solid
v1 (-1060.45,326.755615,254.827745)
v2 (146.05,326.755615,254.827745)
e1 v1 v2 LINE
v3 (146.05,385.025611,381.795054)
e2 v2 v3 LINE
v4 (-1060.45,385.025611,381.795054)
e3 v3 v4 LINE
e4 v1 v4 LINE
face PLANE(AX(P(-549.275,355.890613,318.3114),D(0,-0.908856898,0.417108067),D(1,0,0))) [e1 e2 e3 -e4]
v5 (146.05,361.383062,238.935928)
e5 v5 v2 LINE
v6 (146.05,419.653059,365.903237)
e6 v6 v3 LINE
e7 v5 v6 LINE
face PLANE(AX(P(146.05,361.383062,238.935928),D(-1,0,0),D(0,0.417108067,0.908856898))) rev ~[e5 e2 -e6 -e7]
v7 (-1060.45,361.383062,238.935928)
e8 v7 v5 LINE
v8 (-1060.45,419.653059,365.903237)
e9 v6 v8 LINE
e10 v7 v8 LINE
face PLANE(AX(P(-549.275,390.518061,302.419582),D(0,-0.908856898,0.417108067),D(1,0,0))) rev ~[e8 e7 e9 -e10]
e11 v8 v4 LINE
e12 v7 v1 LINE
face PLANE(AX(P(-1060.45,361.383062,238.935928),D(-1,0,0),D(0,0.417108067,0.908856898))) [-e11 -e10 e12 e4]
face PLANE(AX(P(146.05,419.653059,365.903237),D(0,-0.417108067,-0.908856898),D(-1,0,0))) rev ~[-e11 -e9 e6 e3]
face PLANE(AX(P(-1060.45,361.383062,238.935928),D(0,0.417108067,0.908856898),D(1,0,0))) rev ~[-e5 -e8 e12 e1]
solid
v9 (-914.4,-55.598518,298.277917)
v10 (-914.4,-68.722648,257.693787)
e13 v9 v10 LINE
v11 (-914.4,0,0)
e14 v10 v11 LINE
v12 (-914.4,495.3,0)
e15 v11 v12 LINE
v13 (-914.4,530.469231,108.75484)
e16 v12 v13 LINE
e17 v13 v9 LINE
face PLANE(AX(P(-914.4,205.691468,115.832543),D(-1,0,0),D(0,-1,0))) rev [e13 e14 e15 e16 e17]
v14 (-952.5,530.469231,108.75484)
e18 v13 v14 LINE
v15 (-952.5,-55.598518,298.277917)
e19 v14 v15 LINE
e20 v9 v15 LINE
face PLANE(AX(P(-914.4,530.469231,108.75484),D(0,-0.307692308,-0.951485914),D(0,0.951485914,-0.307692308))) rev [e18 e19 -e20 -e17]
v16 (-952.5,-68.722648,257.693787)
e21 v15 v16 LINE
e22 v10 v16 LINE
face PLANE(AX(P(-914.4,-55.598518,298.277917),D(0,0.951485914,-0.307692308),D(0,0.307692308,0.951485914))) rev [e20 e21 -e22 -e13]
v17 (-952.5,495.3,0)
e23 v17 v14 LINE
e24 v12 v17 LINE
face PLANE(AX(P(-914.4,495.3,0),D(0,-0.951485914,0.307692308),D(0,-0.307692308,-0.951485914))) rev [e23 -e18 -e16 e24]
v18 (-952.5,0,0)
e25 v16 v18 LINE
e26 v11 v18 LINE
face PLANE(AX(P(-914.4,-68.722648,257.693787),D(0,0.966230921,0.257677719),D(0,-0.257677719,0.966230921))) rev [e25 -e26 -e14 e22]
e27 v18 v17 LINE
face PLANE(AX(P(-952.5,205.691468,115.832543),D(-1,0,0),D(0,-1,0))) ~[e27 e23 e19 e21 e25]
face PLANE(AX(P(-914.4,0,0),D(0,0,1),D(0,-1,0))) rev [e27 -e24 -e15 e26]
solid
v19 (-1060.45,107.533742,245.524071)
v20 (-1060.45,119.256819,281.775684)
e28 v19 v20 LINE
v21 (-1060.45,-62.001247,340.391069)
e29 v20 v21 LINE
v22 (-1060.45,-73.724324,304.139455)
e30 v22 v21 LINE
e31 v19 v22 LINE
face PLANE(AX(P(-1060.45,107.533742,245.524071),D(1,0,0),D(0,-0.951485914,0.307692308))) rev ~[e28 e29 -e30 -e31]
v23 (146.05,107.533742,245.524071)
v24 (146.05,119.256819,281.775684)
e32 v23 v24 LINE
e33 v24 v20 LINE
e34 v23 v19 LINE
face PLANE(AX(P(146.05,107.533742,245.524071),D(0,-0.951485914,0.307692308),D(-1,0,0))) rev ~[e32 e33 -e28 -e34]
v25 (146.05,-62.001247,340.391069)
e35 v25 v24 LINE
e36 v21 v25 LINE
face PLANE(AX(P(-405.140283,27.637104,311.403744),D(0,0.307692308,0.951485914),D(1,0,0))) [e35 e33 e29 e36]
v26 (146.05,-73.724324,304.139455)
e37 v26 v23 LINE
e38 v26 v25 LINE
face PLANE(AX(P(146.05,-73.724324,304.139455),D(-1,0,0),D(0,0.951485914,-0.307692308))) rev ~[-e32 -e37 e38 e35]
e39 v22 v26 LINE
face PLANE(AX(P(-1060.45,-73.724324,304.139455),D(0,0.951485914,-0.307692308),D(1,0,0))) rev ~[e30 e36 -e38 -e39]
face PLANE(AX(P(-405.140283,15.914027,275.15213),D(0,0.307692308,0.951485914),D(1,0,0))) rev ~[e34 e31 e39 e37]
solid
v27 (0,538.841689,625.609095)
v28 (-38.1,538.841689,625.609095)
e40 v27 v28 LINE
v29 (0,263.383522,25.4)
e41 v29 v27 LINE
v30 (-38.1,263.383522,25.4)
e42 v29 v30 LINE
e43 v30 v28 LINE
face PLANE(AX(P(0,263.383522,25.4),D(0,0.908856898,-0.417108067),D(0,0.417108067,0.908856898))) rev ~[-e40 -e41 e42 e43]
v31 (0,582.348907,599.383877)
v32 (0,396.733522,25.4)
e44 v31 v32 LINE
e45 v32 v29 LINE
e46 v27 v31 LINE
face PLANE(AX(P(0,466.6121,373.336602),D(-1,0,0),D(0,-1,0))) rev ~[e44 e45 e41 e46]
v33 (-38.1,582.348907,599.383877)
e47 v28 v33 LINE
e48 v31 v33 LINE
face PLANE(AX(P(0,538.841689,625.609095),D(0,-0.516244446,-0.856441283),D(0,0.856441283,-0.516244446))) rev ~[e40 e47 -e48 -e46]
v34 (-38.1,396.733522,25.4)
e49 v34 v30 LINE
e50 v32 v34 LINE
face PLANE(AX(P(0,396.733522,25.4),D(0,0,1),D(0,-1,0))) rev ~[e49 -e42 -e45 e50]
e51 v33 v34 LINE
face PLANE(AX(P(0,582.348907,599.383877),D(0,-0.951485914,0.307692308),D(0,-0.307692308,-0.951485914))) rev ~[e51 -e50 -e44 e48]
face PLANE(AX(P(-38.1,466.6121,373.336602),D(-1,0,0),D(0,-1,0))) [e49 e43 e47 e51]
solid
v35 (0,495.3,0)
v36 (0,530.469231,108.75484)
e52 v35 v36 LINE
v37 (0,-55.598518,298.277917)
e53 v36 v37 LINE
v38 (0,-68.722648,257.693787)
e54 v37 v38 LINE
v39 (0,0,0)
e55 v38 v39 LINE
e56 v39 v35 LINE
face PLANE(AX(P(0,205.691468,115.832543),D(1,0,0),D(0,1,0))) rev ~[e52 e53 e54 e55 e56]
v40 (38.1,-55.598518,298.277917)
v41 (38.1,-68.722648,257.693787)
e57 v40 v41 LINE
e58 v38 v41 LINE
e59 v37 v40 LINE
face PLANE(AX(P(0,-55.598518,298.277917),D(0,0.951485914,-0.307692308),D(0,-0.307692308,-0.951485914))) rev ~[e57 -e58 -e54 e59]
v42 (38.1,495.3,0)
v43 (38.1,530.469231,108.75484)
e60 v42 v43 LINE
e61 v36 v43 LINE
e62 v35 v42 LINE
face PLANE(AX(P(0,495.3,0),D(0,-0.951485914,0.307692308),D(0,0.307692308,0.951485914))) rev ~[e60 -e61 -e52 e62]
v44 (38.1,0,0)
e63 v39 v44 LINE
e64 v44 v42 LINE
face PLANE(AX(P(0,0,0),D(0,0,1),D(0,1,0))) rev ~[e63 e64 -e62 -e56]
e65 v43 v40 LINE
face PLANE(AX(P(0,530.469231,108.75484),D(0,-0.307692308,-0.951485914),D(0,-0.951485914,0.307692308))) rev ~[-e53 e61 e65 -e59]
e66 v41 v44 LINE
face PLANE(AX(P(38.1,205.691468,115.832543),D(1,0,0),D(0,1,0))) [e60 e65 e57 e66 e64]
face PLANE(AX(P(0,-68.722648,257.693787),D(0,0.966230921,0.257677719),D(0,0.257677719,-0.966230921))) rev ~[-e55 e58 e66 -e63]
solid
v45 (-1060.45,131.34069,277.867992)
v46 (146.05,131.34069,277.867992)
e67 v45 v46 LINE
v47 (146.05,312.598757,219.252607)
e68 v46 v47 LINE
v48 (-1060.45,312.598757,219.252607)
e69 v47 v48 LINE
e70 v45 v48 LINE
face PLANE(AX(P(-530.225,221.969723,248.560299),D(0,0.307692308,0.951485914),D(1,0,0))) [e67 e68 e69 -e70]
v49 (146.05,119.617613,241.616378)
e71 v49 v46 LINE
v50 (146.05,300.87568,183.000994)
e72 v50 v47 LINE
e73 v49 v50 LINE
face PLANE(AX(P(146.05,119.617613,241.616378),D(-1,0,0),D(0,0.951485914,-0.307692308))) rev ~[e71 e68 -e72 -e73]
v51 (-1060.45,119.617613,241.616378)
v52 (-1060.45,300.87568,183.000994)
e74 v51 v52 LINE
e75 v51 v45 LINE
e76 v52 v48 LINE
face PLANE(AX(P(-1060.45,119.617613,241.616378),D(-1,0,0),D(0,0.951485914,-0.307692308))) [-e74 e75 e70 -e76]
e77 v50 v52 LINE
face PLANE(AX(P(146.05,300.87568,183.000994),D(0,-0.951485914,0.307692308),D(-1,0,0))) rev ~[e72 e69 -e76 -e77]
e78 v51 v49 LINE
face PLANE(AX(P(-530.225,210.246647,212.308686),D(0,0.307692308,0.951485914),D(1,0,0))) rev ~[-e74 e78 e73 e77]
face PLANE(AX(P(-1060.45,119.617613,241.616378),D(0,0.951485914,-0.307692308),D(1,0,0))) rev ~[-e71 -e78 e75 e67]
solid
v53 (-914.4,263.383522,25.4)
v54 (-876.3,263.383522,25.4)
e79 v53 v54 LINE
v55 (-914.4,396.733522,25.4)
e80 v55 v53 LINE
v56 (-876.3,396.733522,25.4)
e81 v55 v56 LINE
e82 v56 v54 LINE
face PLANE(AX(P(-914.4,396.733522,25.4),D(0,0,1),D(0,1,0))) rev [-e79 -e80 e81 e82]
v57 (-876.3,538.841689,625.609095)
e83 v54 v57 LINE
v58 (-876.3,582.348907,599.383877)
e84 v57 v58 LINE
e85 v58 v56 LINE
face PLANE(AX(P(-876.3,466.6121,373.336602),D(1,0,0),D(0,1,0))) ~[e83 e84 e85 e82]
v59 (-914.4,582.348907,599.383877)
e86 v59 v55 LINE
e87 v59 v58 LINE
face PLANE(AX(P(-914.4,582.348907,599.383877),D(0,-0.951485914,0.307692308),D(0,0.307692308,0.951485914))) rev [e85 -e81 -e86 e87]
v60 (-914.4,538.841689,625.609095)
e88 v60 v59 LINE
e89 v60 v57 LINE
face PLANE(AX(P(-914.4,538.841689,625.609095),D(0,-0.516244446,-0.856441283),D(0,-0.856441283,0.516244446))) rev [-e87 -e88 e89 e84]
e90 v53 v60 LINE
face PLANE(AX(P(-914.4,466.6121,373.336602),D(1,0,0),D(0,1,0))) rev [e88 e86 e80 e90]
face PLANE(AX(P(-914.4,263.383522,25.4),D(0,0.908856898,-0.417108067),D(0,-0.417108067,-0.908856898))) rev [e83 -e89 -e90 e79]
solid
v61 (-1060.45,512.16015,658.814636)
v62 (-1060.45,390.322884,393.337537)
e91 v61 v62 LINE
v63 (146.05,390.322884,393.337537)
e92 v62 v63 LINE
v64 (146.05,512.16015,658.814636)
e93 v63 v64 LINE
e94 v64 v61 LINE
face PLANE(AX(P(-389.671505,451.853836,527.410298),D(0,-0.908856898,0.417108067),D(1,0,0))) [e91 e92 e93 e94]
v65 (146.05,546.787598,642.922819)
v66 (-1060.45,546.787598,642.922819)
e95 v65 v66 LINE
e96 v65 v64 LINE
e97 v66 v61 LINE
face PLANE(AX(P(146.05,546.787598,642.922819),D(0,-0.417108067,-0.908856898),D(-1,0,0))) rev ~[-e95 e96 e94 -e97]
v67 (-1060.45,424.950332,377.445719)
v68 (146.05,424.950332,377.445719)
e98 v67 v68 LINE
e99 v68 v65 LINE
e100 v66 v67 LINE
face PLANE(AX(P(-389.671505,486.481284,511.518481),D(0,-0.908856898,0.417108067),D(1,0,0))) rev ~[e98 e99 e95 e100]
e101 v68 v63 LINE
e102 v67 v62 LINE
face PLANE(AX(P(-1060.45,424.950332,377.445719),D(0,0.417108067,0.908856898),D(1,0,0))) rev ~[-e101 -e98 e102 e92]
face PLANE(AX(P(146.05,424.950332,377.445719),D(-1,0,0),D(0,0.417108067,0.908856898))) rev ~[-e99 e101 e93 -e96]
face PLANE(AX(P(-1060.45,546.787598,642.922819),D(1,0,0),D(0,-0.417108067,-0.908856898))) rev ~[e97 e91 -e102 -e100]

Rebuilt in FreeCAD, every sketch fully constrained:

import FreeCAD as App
import Part
import Sketcher
Q = App.Units.Quantity

doc = App.newDocument("Part")
body = doc.addObject("PartDesign::Body", "Body")

sketch1 = body.newObject("Sketcher::SketchObject", "Sketch")
sketch1.AttachmentSupport = (doc.getObject("YZ_Plane"), [""])
sketch1.MapMode = "FlatFace"
sketch1.addGeometry(Part.LineSegment(App.Vector(-68.722648, 257.693787, 0), App.Vector(0, 0, 0)), False)
sketch1.addGeometry(Part.LineSegment(App.Vector(0, 0, 0), App.Vector(495.3, 0, 0)), False)
sketch1.addGeometry(Part.LineSegment(App.Vector(495.3, 0, 0), App.Vector(530.469231, 108.75484, 0)), False)
sketch1.addGeometry(Part.LineSegment(App.Vector(530.469231, 108.75484, 0), App.Vector(-55.598518, 298.277917, 0)), False)
sketch1.addGeometry(Part.LineSegment(App.Vector(-55.598518, 298.277917, 0), App.Vector(-68.722648, 257.693787, 0)), False)
sketch1.addConstraint(Sketcher.Constraint("Coincident", 0, 2, 1, 1))
sketch1.addConstraint(Sketcher.Constraint("Coincident", 1, 2, 2, 1))
sketch1.addConstraint(Sketcher.Constraint("Coincident", 2, 2, 3, 1))
sketch1.addConstraint(Sketcher.Constraint("Coincident", 3, 2, 4, 1))
sketch1.addConstraint(Sketcher.Constraint("Coincident", 4, 2, 0, 1))
sketch1.addConstraint(Sketcher.Constraint("Horizontal", 1))
sketch1.addConstraint(Sketcher.Constraint("Coincident", 0, 2, -1, 1))
sketch1.addConstraint(Sketcher.Constraint("Perpendicular", 2, 3))
sketch1.addConstraint(Sketcher.Constraint("Perpendicular", 3, 4))
sketch1.addConstraint(Sketcher.Constraint("DistanceX", 1, 1, 1, 2, Q("19.5 in")))
sketch1.addConstraint(Sketcher.Constraint("Distance", 0, Q("10.5 in")))
sketch1.addConstraint(Sketcher.Constraint("Distance", 2, Q("4.5 in")))
sketch1.addConstraint(Sketcher.Constraint("Distance", 3, Q("24.25 in")))
sketch1.addConstraint(Sketcher.Constraint("Distance", 4, Q("42.653422 mm")))
pad1 = body.newObject("PartDesign::Pad", "Pad")
pad1.Profile = sketch1
pad1.Length = Q("1.5 in")
body2 = doc.addObject("PartDesign::Body", "Body001")

sketch2 = body2.newObject("Sketcher::SketchObject", "Sketch001")
sketch2.AttachmentSupport = (doc.getObject("YZ_Plane001"), [""])
sketch2.MapMode = "FlatFace"
sketch2.addGeometry(Part.LineSegment(App.Vector(538.841689, 625.609095, 0), App.Vector(582.348907, 599.383877, 0)), False)
sketch2.addGeometry(Part.LineSegment(App.Vector(582.348907, 599.383877, 0), App.Vector(396.733522, 25.4, 0)), False)
sketch2.addGeometry(Part.LineSegment(App.Vector(396.733522, 25.4, 0), App.Vector(263.383522, 25.4, 0)), False)
sketch2.addGeometry(Part.LineSegment(App.Vector(263.383522, 25.4, 0), App.Vector(538.841689, 625.609095, 0)), False)
sketch2.addConstraint(Sketcher.Constraint("Coincident", 0, 2, 1, 1))
sketch2.addConstraint(Sketcher.Constraint("Coincident", 1, 2, 2, 1))
sketch2.addConstraint(Sketcher.Constraint("Coincident", 2, 2, 3, 1))
sketch2.addConstraint(Sketcher.Constraint("Coincident", 3, 2, 0, 1))
sketch2.addConstraint(Sketcher.Constraint("Horizontal", 2))
sketch2.addConstraint(Sketcher.Constraint("Distance", 0, Q("2 in")))
sketch2.addConstraint(Sketcher.Constraint("Distance", 3, Q("26 in")))
sketch2.addConstraint(Sketcher.Constraint("DistanceY", -1, 1, 1, 2, Q("1 in")))
sketch2.addConstraint(Sketcher.Constraint("DistanceX", 2, 2, 2, 1, Q("5.25 in")))
sketch2.addConstraint(Sketcher.Constraint("Distance", 1, Q("23.75 in")))
sketch2.addConstraint(Sketcher.Constraint("DistanceX", -1, 1, 1, 2, Q("396.733522 mm")))
sketch2.addConstraint(Sketcher.Constraint("DistanceX", -1, 1, 3, 2, Q("538.841689 mm")))
pad2 = body2.newObject("PartDesign::Pad", "Pad001")
pad2.Profile = sketch2
pad2.Length = Q("1.5 in")
pad2.Reversed = True
body3 = doc.addObject("PartDesign::Body", "Body002")
doc.recompute()

mirroring = doc.addObject("Part::Mirroring", "Mirroring")
mirroring.Source = body
mirroring.Base = App.Vector(-457.2, 0, 0)
mirroring.Normal = App.Vector(1, 0, 0)
body3.BaseFeature = mirroring
doc.recompute()
body4 = doc.addObject("PartDesign::Body", "Body003")
doc.recompute()

mirroring2 = doc.addObject("Part::Mirroring", "Mirroring001")
mirroring2.Source = body2
mirroring2.Base = App.Vector(-457.2, 0, 0)
mirroring2.Normal = App.Vector(1, 0, 0)
body4.BaseFeature = mirroring2
doc.recompute()
body5 = doc.addObject("PartDesign::Body", "Body004")

sketch3 = body5.newObject("Sketcher::SketchObject", "Sketch002")
sketch3.Placement = App.Placement(App.Vector(0, 207.931358, -95.427396), App.Rotation(App.Vector(1, 0, 0), App.Vector(0, 0.417108067, 0.908856898), App.Vector(0, -0.908856898, 0.417108067), "ZXY"))
sketch3.addGeometry(Part.LineSegment(App.Vector(146.05, 812.394357, 0), App.Vector(-1060.45, 812.394357, 0)), False)
sketch3.addGeometry(Part.LineSegment(App.Vector(-1060.45, 812.394357, 0), App.Vector(-1060.45, 520.294357, 0)), False)
sketch3.addGeometry(Part.LineSegment(App.Vector(-1060.45, 520.294357, 0), App.Vector(146.05, 520.294357, 0)), False)
sketch3.addGeometry(Part.LineSegment(App.Vector(146.05, 520.294357, 0), App.Vector(146.05, 812.394357, 0)), False)
sketch3.addConstraint(Sketcher.Constraint("Coincident", 0, 2, 1, 1))
sketch3.addConstraint(Sketcher.Constraint("Coincident", 1, 2, 2, 1))
sketch3.addConstraint(Sketcher.Constraint("Coincident", 2, 2, 3, 1))
sketch3.addConstraint(Sketcher.Constraint("Coincident", 3, 2, 0, 1))
sketch3.addConstraint(Sketcher.Constraint("Horizontal", 0))
sketch3.addConstraint(Sketcher.Constraint("Vertical", 1))
sketch3.addConstraint(Sketcher.Constraint("Horizontal", 2))
sketch3.addConstraint(Sketcher.Constraint("Vertical", 3))
sketch3.addConstraint(Sketcher.Constraint("DistanceX", 0, 2, 0, 1, Q("47.5 in")))
sketch3.addConstraint(Sketcher.Constraint("DistanceY", 1, 2, 1, 1, Q("11.5 in")))
sketch3.addConstraint(Sketcher.Constraint("DistanceX", 0, 2, -1, 1, Q("41.75 in")))
sketch3.addConstraint(Sketcher.Constraint("DistanceY", -1, 1, 0, 2, Q("812.394357 mm")))
pad3 = body5.newObject("PartDesign::Pad", "Pad002")
pad3.Profile = sketch3
pad3.Length = Q("1.5 in")
body6 = doc.addObject("PartDesign::Body", "Body005")

sketch4 = body6.newObject("Sketcher::SketchObject", "Sketch003")
sketch4.Placement = App.Placement(App.Vector(0, 207.931358, -95.427396), App.Rotation(App.Vector(1, 0, 0), App.Vector(0, 0.417108067, 0.908856898), App.Vector(0, -0.908856898, 0.417108067), "ZXY"))
sketch4.addGeometry(Part.LineSegment(App.Vector(-1060.45, 507.594357, 0), App.Vector(-1060.45, 367.894357, 0)), False)
sketch4.addGeometry(Part.LineSegment(App.Vector(-1060.45, 367.894357, 0), App.Vector(146.05, 367.894357, 0)), False)
sketch4.addGeometry(Part.LineSegment(App.Vector(146.05, 367.894357, 0), App.Vector(146.05, 507.594357, 0)), False)
sketch4.addGeometry(Part.LineSegment(App.Vector(146.05, 507.594357, 0), App.Vector(-1060.45, 507.594357, 0)), False)
sketch4.addConstraint(Sketcher.Constraint("Coincident", 0, 2, 1, 1))
sketch4.addConstraint(Sketcher.Constraint("Coincident", 1, 2, 2, 1))
sketch4.addConstraint(Sketcher.Constraint("Coincident", 2, 2, 3, 1))
sketch4.addConstraint(Sketcher.Constraint("Coincident", 3, 2, 0, 1))
sketch4.addConstraint(Sketcher.Constraint("Vertical", 0))
sketch4.addConstraint(Sketcher.Constraint("Horizontal", 1))
sketch4.addConstraint(Sketcher.Constraint("Vertical", 2))
sketch4.addConstraint(Sketcher.Constraint("Horizontal", 3))
sketch4.addConstraint(Sketcher.Constraint("DistanceX", 1, 1, 1, 2, Q("47.5 in")))
sketch4.addConstraint(Sketcher.Constraint("DistanceY", 0, 2, 0, 1, Q("5.5 in")))
sketch4.addConstraint(Sketcher.Constraint("DistanceX", 0, 2, -1, 1, Q("41.75 in")))
sketch4.addConstraint(Sketcher.Constraint("DistanceY", -1, 1, 0, 2, Q("367.894357 mm")))
pad4 = body6.newObject("PartDesign::Pad", "Pad003")
pad4.Profile = sketch4
pad4.Length = Q("1.5 in")
body7 = doc.addObject("PartDesign::Body", "Body006")

sketch5 = body7.newObject("Sketcher::SketchObject", "Sketch004")
sketch5.Placement = App.Placement(App.Vector(0, 82.061538, 253.761293), App.Rotation(App.Vector(1, 0, 0), App.Vector(0, 0.951485914, -0.307692308), App.Vector(0, 0.307692308, 0.951485914), "ZXY"))
sketch5.addGeometry(Part.LineSegment(App.Vector(-1060.45, 26.770973, 0), App.Vector(-1060.45, -163.729027, 0)), False)
sketch5.addGeometry(Part.LineSegment(App.Vector(-1060.45, -163.729027, 0), App.Vector(146.05, -163.729027, 0)), False)
sketch5.addGeometry(Part.LineSegment(App.Vector(146.05, -163.729027, 0), App.Vector(146.05, 26.770973, 0)), False)
sketch5.addGeometry(Part.LineSegment(App.Vector(146.05, 26.770973, 0), App.Vector(-1060.45, 26.770973, 0)), False)
sketch5.addConstraint(Sketcher.Constraint("Coincident", 0, 2, 1, 1))
sketch5.addConstraint(Sketcher.Constraint("Coincident", 1, 2, 2, 1))
sketch5.addConstraint(Sketcher.Constraint("Coincident", 2, 2, 3, 1))
sketch5.addConstraint(Sketcher.Constraint("Coincident", 3, 2, 0, 1))
sketch5.addConstraint(Sketcher.Constraint("Vertical", 0))
sketch5.addConstraint(Sketcher.Constraint("Horizontal", 1))
sketch5.addConstraint(Sketcher.Constraint("Vertical", 2))
sketch5.addConstraint(Sketcher.Constraint("Horizontal", 3))
sketch5.addConstraint(Sketcher.Constraint("DistanceX", 1, 1, 1, 2, Q("47.5 in")))
sketch5.addConstraint(Sketcher.Constraint("DistanceY", 0, 2, 0, 1, Q("7.5 in")))
sketch5.addConstraint(Sketcher.Constraint("DistanceX", 0, 2, -1, 1, Q("41.75 in")))
sketch5.addConstraint(Sketcher.Constraint("DistanceY", 0, 2, -1, 1, Q("163.729027 mm")))
pad5 = body7.newObject("PartDesign::Pad", "Pad004")
pad5.Profile = sketch5
pad5.Length = Q("1.5 in")
body8 = doc.addObject("PartDesign::Body", "Body007")

sketch6 = body8.newObject("Sketcher::SketchObject", "Sketch005")
sketch6.Placement = App.Placement(App.Vector(0, 82.061538, 253.761293), App.Rotation(App.Vector(1, 0, 0), App.Vector(0, 0.951485914, -0.307692308), App.Vector(0, 0.307692308, 0.951485914), "ZXY"))
sketch6.addGeometry(Part.LineSegment(App.Vector(-1060.45, 229.970973, 0), App.Vector(-1060.45, 39.470973, 0)), False)
sketch6.addGeometry(Part.LineSegment(App.Vector(-1060.45, 39.470973, 0), App.Vector(146.05, 39.470973, 0)), False)
sketch6.addGeometry(Part.LineSegment(App.Vector(146.05, 39.470973, 0), App.Vector(146.05, 229.970973, 0)), False)
sketch6.addGeometry(Part.LineSegment(App.Vector(146.05, 229.970973, 0), App.Vector(-1060.45, 229.970973, 0)), False)
sketch6.addConstraint(Sketcher.Constraint("Coincident", 0, 2, 1, 1))
sketch6.addConstraint(Sketcher.Constraint("Coincident", 1, 2, 2, 1))
sketch6.addConstraint(Sketcher.Constraint("Coincident", 2, 2, 3, 1))
sketch6.addConstraint(Sketcher.Constraint("Coincident", 3, 2, 0, 1))
sketch6.addConstraint(Sketcher.Constraint("Vertical", 0))
sketch6.addConstraint(Sketcher.Constraint("Horizontal", 1))
sketch6.addConstraint(Sketcher.Constraint("Vertical", 2))
sketch6.addConstraint(Sketcher.Constraint("Horizontal", 3))
sketch6.addConstraint(Sketcher.Constraint("DistanceX", 1, 1, 1, 2, Q("47.5 in")))
sketch6.addConstraint(Sketcher.Constraint("DistanceY", 0, 2, 0, 1, Q("7.5 in")))
sketch6.addConstraint(Sketcher.Constraint("DistanceX", 0, 2, -1, 1, Q("41.75 in")))
sketch6.addConstraint(Sketcher.Constraint("DistanceY", -1, 1, 0, 2, Q("39.470973 mm")))
pad6 = body8.newObject("PartDesign::Pad", "Pad005")
pad6.Profile = sketch6
pad6.Length = Q("1.5 in")
mirroring.Visibility = False
mirroring2.Visibility = False

doc.recompute()
